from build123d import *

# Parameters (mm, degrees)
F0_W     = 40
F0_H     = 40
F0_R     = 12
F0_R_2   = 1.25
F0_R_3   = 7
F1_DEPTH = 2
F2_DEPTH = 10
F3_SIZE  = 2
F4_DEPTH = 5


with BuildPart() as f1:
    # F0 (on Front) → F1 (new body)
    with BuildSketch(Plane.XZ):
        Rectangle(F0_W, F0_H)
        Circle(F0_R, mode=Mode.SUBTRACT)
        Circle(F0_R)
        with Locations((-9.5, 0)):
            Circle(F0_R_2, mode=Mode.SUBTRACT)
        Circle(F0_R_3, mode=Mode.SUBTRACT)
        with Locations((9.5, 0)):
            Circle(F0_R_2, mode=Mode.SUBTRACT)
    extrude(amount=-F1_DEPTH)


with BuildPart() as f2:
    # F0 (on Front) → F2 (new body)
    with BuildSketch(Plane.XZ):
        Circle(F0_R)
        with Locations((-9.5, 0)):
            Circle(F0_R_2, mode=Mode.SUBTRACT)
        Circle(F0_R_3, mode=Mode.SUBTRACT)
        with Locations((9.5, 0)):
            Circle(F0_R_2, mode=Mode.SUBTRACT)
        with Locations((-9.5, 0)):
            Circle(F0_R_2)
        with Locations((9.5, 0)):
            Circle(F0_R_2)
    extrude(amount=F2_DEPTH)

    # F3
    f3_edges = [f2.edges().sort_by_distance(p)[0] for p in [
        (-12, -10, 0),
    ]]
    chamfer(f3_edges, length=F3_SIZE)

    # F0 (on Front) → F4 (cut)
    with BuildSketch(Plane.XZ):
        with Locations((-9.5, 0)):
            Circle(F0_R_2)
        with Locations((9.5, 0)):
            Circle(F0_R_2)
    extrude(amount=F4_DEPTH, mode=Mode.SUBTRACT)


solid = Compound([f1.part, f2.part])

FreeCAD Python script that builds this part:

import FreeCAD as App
import Part
import Sketcher
Q = App.Units.Quantity


def edges_at(feature, points):
    """Names of the edges that pass closest to the given points."""
    edges = feature.Shape.Edges
    near = lambda p: min(range(len(edges)), key=lambda i: edges[i].distToShape(Part.Vertex(*p))[0])
    return sorted({f"Edge{near(p) + 1}" for p in points})


def add_polygon(sketch, points):
    """Adds a closed chain of lines whose ends are joined by coincident constraints."""
    first, n = sketch.GeometryCount, len(points)
    for a, b in zip(points, points[1:] + points[:1]):
        sketch.addGeometry(Part.LineSegment(App.Vector(*a, 0), App.Vector(*b, 0)), False)
    for i in range(n):
        sketch.addConstraint(Sketcher.Constraint("Coincident", first + i, 2, first + (i + 1) % n, 1))

doc = App.newDocument("Part")
body = doc.addObject("PartDesign::Body", "Body")

# Sketch on XZ plane
sketch1 = doc.addObject("Sketcher::SketchObject", "Sketch")
body.addObject(sketch1)
sketch1.AttachmentSupport = (doc.XZ_Plane, [""])
sketch1.MapMode = "FlatFace"
add_polygon(sketch1, [(-20, 20), (-20, -20), (20, -20), (20, 20)])  # lines 0-3
sketch1.addGeometry(Part.Circle(App.Vector(-9.5, 0, 0), App.Vector(0, 0, 1), 1.2), False)  # 4
sketch1.addGeometry(Part.Circle(App.Vector(0, 0, 0), App.Vector(0, 0, 1), 7), False)  # 5
sketch1.addGeometry(Part.Circle(App.Vector(9.5, 0, 0), App.Vector(0, 0, 1), 1.2), False)  # 6
sketch1.addConstraint([
    Sketcher.Constraint("Vertical", 0),
    Sketcher.Constraint("Horizontal", 1),
    Sketcher.Constraint("Vertical", 2),
    Sketcher.Constraint("Horizontal", 3),
    Sketcher.Constraint("Coincident", 5, 3, -1, 1),
    Sketcher.Constraint("Equal", 4, 6),
    Sketcher.Constraint("Symmetric", 4, 3, 6, 3, -1, 1),
    Sketcher.Constraint("Symmetric", 0, 2, 2, 2, -1, 1),
    Sketcher.Constraint("PointOnObject", 4, 3, -1),
    Sketcher.Constraint("Equal", 3, 0),
    Sketcher.Constraint("Diameter", 5, Q("14 mm")),
    Sketcher.Constraint("Diameter", 4, Q("2.5 mm")),
    Sketcher.Constraint("DistanceX", 1, 1, 1, 2, Q("40 mm")),
    Sketcher.Constraint("DistanceX", 4, 3, 6, 3, Q("19 mm")),
])
pad1 = doc.addObject("PartDesign::Pad", "Pad")
body.addObject(pad1)
pad1.Profile = sketch1
pad1.Length = 2
pad1.Reversed = True
body2 = doc.addObject("PartDesign::Body", "Body001")

# Sketch on XZ plane
sketch2 = doc.addObject("Sketcher::SketchObject", "Sketch001")
body2.addObject(sketch2)
sketch2.AttachmentSupport = (doc.getObject("XZ_Plane001"), [""])
sketch2.MapMode = "FlatFace"
sketch2.addGeometry([
    Part.Circle(App.Vector(0, 0, 0), App.Vector(0, 0, 1), 12),
    Part.Circle(App.Vector(0, 0, 0), App.Vector(0, 0, 1), 7),
], False)
sketch2.addConstraint([
    Sketcher.Constraint("Coincident", 0, 3, -1, 1),
    Sketcher.Constraint("Coincident", 1, 3, -1, 1),
    Sketcher.Constraint("Diameter", 0, Q("24 mm")),
    Sketcher.Constraint("Diameter", 1, Q("14 mm")),
])
pad2 = doc.addObject("PartDesign::Pad", "Pad001")
body2.addObject(pad2)
pad2.Profile = sketch2
pad2.Length = 10
doc.recompute()

chamfer = doc.addObject("PartDesign::Chamfer", "Chamfer")
body2.addObject(chamfer)
chamfer.Base = (pad2, edges_at(pad2, [(-12, -10, 0)]))
chamfer.Size = 2

# Sketch on XZ plane
sketch3 = doc.addObject("Sketcher::SketchObject", "Sketch002")
body2.addObject(sketch3)
sketch3.AttachmentSupport = (doc.getObject("XZ_Plane001"), [""])
sketch3.MapMode = "FlatFace"
sketch3.addGeometry([
    Part.Circle(App.Vector(-9.5, 0, 0), App.Vector(0, 0, 1), 1.2),
    Part.Circle(App.Vector(9.5, 0, 0), App.Vector(0, 0, 1), 1.2),
], False)
sketch3.addConstraint([
    Sketcher.Constraint("Equal", 0, 1),
    Sketcher.Constraint("Symmetric", 0, 3, 1, 3, -1, 1),
    Sketcher.Constraint("PointOnObject", 0, 3, -1),
    Sketcher.Constraint("Diameter", 0, Q("2.5 mm")),
    Sketcher.Constraint("DistanceX", 0, 3, 1, 3, Q("19 mm")),
])
pocket1 = doc.addObject("PartDesign::Pocket", "Pocket")
body2.addObject(pocket1)
pocket1.Profile = sketch3
pocket1.Length = 5
pocket1.Reversed = True

doc.recompute()
